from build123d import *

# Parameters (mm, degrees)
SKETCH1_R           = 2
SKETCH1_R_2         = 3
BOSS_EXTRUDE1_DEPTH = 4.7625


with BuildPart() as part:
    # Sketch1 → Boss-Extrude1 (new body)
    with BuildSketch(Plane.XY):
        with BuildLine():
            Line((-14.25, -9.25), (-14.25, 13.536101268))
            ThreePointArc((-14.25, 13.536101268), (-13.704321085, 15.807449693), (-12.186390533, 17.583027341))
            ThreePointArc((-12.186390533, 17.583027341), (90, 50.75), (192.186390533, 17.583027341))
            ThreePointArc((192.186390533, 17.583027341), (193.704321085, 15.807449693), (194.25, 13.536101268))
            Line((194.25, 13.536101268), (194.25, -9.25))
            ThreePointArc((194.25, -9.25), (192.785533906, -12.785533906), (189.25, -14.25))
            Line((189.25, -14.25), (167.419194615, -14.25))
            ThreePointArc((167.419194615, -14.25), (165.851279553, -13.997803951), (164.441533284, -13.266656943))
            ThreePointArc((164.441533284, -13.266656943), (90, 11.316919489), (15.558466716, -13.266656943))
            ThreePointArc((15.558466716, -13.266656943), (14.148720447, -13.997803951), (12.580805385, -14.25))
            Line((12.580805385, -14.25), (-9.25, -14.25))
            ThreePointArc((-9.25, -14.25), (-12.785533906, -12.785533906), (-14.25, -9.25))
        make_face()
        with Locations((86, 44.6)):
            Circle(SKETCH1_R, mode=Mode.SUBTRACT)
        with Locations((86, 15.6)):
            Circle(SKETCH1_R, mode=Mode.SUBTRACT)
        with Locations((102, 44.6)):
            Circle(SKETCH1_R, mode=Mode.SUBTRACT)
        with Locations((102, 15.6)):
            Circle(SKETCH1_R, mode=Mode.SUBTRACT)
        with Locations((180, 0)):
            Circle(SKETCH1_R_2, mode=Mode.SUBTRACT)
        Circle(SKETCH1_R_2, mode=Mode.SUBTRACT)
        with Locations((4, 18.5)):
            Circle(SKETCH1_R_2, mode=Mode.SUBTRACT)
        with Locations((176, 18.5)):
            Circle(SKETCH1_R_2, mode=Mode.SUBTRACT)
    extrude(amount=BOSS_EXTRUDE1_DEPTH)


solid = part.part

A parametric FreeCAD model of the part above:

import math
import FreeCAD as App
import Part
import Sketcher

V = App.Vector
Q = App.Units.Quantity

doc = App.newDocument("Part")
params = doc.addObject("Spreadsheet::Sheet", "Params")
for row, (alias, value) in enumerate([
    ("sketch1_diameter", "6 mm"),
    ("sketch1_diameter2", "4 mm"),
    ("sketch1_radius", "5 mm"),
    ("sketch1_radius2", "125 mm"),
    ("sketch1_radius3", "174 mm"),
    ("pad1_length", "4.7625 mm"),
], start=1):
    params.set(f"A{row}", alias)
    params.set(f"B{row}", "=" + value)
    params.setAlias(f"B{row}", alias)

body = doc.addObject("PartDesign::Body", "Body")

sketch1 = doc.addObject("Sketcher::SketchObject", "Sketch")
body.addObject(sketch1)
sketch1.AttachmentSupport = (doc.XY_Plane, [""])
sketch1.MapMode = "FlatFace"
sketch1.addGeometry([
    Part.LineSegment(V(-14.2, 13.5, 0), V(-14.2, -9.2, 0)),
    Part.ArcOfCircle(Part.Circle(V(-9.2, -9.2, 0), V(0, 0, 1), 5), math.radians(180), math.radians(270)),
    Part.LineSegment(V(-9.2, -14.2, 0), V(12.6, -14.2, 0)),
    Part.ArcOfCircle(Part.Circle(V(12.6, -9.2, 0), V(0, 0, 1), 5), math.radians(-90), math.radians(-53)),
    Part.ArcOfCircle(Part.Circle(V(90, -113.7, 0), V(0, 0, 1), 125), math.radians(53), math.radians(127)),
    Part.ArcOfCircle(Part.Circle(V(167.4, -9.2, 0), V(0, 0, 1), 5), math.radians(-127), math.radians(-90)),
    Part.LineSegment(V(167.4, -14.2, 0), V(189.2, -14.2, 0)),
    Part.ArcOfCircle(Part.Circle(V(189.2, -9.2, 0), V(0, 0, 1), 5), math.radians(-90), math.radians(0)),
    Part.LineSegment(V(194.2, -9.2, 0), V(194.2, 13.5, 0)),
    Part.ArcOfCircle(Part.Circle(V(189.2, 13.5, 0), V(0, 0, 1), 5), math.radians(0), math.radians(54)),
    Part.ArcOfCircle(Part.Circle(V(90, -123.3, 0), V(0, 0, 1), 174), math.radians(54), math.radians(126)),
    Part.ArcOfCircle(Part.Circle(V(-9.2, 13.5, 0), V(0, 0, 1), 5), math.radians(126), math.radians(180)),
    Part.Circle(V(180, 0, 0), V(0, 0, 1), 3),
    Part.Circle(V(176, 18.5, 0), V(0, 0, 1), 3),
    Part.Circle(V(102, 15.6, 0), V(0, 0, 1), 2),
    Part.Circle(V(0, 0, 0), V(0, 0, 1), 3),
    Part.Circle(V(86, 15.6, 0), V(0, 0, 1), 2),
    Part.Circle(V(4, 18.5, 0), V(0, 0, 1), 3),
    Part.Circle(V(102, 44.6, 0), V(0, 0, 1), 2),
    Part.Circle(V(86, 44.6, 0), V(0, 0, 1), 2),
], False)
sketch1.addConstraint([
    Sketcher.Constraint("Tangent", 0, 2, 1, 1),
    Sketcher.Constraint("Tangent", 1, 2, 2, 1),
    Sketcher.Constraint("Tangent", 2, 2, 3, 1),
    Sketcher.Constraint("Tangent", 3, 2, 4, 2),
    Sketcher.Constraint("Tangent", 4, 1, 5, 1),
    Sketcher.Constraint("Tangent", 5, 2, 6, 1),
    Sketcher.Constraint("Tangent", 6, 2, 7, 1),
    Sketcher.Constraint("Tangent", 7, 2, 8, 1),
    Sketcher.Constraint("Tangent", 8, 2, 9, 1),
    Sketcher.Constraint("Tangent", 9, 2, 10, 1),
    Sketcher.Constraint("Tangent", 10, 2, 11, 1),
    Sketcher.Constraint("Tangent", 11, 2, 0, 1),
    Sketcher.Constraint("Vertical", 0),
    Sketcher.Constraint("Horizontal", 2),
    Sketcher.Constraint("Horizontal", 6),
    Sketcher.Constraint("Vertical", 8),
    Sketcher.Constraint("Coincident", 15, 3, -1, 1),
    Sketcher.Constraint("Equal", 1, 3),
    Sketcher.Constraint("Equal", 3, 5),
    Sketcher.Constraint("Equal", 5, 7),
    Sketcher.Constraint("Equal", 7, 9),
    Sketcher.Constraint("Equal", 9, 11),
    Sketcher.Constraint("Equal", 12, 13),
    Sketcher.Constraint("Equal", 13, 15),
    Sketcher.Constraint("Equal", 14, 16),
    Sketcher.Constraint("Equal", 15, 17),
    Sketcher.Constraint("Equal", 16, 18),
    Sketcher.Constraint("Equal", 18, 19),
    Sketcher.Constraint("PointOnObject", 12, 3, -1),
    Sketcher.Constraint("Horizontal", 3, 3, 5, 3),
    Sketcher.Constraint("Horizontal", 9, 3, 11, 3),
    Sketcher.Constraint("Horizontal", 14, 3, 16, 3),
    Sketcher.Constraint("Horizontal", 13, 3, 17, 3),
    Sketcher.Constraint("Horizontal", 18, 3, 19, 3),
    Sketcher.Constraint("Vertical", 4, 3, 10, 3),
    Sketcher.Constraint("Vertical", 14, 3, 18, 3),
    Sketcher.Constraint("Vertical", 16, 3, 19, 3),
    Sketcher.Constraint("Diameter", 12, Q("6 mm")),
    Sketcher.Constraint("Diameter", 14, Q("4 mm")),
    Sketcher.Constraint("Radius", 1, Q("5 mm")),
    Sketcher.Constraint("Radius", 4, Q("125 mm")),
    Sketcher.Constraint("Radius", 10, Q("174 mm")),
    Sketcher.Constraint("DistanceX", -1, 1, 4, 3, Q("90 mm")),
    Sketcher.Constraint("DistanceX", -1, 1, 12, 3, Q("180 mm")),
    Sketcher.Constraint("DistanceX", -1, 1, 13, 3, Q("176 mm")),
    Sketcher.Constraint("DistanceX", -1, 1, 14, 3, Q("102 mm")),
    Sketcher.Constraint("DistanceX", -1, 1, 16, 3, Q("86 mm")),
    Sketcher.Constraint("DistanceX", -1, 1, 17, 3, Q("4 mm")),
    Sketcher.Constraint("DistanceY", 10, 3, 3, 3, Q("114 mm")),
    Sketcher.Constraint("DistanceY", 14, 3, 18, 3, Q("29 mm")),
    Sketcher.Constraint("DistanceY", -1, 1, 13, 3, Q("18.5 mm")),
    Sketcher.Constraint("DistanceY", -1, 1, 14, 3, Q("15.6 mm")),
    Sketcher.Constraint("DistanceX", 1, 3, 7, 3, Q("198.5 mm")),
    Sketcher.Constraint("DistanceY", 1, 3, -1, 1, Q("9.25 mm")),
    Sketcher.Constraint("DistanceX", 2, 1, 2, 2, Q("21.830805 mm")),
])
sketch1.setExpression("Constraints[37]", "Params.sketch1_diameter")
sketch1.setExpression("Constraints[38]", "Params.sketch1_diameter2")
sketch1.setExpression("Constraints[39]", "Params.sketch1_radius")
sketch1.setExpression("Constraints[40]", "Params.sketch1_radius2")
sketch1.setExpression("Constraints[41]", "Params.sketch1_radius3")
pad1 = doc.addObject("PartDesign::Pad", "Pad")
body.addObject(pad1)
pad1.Profile = sketch1
pad1.setExpression("Length", "Params.pad1_length")

doc.recompute()
